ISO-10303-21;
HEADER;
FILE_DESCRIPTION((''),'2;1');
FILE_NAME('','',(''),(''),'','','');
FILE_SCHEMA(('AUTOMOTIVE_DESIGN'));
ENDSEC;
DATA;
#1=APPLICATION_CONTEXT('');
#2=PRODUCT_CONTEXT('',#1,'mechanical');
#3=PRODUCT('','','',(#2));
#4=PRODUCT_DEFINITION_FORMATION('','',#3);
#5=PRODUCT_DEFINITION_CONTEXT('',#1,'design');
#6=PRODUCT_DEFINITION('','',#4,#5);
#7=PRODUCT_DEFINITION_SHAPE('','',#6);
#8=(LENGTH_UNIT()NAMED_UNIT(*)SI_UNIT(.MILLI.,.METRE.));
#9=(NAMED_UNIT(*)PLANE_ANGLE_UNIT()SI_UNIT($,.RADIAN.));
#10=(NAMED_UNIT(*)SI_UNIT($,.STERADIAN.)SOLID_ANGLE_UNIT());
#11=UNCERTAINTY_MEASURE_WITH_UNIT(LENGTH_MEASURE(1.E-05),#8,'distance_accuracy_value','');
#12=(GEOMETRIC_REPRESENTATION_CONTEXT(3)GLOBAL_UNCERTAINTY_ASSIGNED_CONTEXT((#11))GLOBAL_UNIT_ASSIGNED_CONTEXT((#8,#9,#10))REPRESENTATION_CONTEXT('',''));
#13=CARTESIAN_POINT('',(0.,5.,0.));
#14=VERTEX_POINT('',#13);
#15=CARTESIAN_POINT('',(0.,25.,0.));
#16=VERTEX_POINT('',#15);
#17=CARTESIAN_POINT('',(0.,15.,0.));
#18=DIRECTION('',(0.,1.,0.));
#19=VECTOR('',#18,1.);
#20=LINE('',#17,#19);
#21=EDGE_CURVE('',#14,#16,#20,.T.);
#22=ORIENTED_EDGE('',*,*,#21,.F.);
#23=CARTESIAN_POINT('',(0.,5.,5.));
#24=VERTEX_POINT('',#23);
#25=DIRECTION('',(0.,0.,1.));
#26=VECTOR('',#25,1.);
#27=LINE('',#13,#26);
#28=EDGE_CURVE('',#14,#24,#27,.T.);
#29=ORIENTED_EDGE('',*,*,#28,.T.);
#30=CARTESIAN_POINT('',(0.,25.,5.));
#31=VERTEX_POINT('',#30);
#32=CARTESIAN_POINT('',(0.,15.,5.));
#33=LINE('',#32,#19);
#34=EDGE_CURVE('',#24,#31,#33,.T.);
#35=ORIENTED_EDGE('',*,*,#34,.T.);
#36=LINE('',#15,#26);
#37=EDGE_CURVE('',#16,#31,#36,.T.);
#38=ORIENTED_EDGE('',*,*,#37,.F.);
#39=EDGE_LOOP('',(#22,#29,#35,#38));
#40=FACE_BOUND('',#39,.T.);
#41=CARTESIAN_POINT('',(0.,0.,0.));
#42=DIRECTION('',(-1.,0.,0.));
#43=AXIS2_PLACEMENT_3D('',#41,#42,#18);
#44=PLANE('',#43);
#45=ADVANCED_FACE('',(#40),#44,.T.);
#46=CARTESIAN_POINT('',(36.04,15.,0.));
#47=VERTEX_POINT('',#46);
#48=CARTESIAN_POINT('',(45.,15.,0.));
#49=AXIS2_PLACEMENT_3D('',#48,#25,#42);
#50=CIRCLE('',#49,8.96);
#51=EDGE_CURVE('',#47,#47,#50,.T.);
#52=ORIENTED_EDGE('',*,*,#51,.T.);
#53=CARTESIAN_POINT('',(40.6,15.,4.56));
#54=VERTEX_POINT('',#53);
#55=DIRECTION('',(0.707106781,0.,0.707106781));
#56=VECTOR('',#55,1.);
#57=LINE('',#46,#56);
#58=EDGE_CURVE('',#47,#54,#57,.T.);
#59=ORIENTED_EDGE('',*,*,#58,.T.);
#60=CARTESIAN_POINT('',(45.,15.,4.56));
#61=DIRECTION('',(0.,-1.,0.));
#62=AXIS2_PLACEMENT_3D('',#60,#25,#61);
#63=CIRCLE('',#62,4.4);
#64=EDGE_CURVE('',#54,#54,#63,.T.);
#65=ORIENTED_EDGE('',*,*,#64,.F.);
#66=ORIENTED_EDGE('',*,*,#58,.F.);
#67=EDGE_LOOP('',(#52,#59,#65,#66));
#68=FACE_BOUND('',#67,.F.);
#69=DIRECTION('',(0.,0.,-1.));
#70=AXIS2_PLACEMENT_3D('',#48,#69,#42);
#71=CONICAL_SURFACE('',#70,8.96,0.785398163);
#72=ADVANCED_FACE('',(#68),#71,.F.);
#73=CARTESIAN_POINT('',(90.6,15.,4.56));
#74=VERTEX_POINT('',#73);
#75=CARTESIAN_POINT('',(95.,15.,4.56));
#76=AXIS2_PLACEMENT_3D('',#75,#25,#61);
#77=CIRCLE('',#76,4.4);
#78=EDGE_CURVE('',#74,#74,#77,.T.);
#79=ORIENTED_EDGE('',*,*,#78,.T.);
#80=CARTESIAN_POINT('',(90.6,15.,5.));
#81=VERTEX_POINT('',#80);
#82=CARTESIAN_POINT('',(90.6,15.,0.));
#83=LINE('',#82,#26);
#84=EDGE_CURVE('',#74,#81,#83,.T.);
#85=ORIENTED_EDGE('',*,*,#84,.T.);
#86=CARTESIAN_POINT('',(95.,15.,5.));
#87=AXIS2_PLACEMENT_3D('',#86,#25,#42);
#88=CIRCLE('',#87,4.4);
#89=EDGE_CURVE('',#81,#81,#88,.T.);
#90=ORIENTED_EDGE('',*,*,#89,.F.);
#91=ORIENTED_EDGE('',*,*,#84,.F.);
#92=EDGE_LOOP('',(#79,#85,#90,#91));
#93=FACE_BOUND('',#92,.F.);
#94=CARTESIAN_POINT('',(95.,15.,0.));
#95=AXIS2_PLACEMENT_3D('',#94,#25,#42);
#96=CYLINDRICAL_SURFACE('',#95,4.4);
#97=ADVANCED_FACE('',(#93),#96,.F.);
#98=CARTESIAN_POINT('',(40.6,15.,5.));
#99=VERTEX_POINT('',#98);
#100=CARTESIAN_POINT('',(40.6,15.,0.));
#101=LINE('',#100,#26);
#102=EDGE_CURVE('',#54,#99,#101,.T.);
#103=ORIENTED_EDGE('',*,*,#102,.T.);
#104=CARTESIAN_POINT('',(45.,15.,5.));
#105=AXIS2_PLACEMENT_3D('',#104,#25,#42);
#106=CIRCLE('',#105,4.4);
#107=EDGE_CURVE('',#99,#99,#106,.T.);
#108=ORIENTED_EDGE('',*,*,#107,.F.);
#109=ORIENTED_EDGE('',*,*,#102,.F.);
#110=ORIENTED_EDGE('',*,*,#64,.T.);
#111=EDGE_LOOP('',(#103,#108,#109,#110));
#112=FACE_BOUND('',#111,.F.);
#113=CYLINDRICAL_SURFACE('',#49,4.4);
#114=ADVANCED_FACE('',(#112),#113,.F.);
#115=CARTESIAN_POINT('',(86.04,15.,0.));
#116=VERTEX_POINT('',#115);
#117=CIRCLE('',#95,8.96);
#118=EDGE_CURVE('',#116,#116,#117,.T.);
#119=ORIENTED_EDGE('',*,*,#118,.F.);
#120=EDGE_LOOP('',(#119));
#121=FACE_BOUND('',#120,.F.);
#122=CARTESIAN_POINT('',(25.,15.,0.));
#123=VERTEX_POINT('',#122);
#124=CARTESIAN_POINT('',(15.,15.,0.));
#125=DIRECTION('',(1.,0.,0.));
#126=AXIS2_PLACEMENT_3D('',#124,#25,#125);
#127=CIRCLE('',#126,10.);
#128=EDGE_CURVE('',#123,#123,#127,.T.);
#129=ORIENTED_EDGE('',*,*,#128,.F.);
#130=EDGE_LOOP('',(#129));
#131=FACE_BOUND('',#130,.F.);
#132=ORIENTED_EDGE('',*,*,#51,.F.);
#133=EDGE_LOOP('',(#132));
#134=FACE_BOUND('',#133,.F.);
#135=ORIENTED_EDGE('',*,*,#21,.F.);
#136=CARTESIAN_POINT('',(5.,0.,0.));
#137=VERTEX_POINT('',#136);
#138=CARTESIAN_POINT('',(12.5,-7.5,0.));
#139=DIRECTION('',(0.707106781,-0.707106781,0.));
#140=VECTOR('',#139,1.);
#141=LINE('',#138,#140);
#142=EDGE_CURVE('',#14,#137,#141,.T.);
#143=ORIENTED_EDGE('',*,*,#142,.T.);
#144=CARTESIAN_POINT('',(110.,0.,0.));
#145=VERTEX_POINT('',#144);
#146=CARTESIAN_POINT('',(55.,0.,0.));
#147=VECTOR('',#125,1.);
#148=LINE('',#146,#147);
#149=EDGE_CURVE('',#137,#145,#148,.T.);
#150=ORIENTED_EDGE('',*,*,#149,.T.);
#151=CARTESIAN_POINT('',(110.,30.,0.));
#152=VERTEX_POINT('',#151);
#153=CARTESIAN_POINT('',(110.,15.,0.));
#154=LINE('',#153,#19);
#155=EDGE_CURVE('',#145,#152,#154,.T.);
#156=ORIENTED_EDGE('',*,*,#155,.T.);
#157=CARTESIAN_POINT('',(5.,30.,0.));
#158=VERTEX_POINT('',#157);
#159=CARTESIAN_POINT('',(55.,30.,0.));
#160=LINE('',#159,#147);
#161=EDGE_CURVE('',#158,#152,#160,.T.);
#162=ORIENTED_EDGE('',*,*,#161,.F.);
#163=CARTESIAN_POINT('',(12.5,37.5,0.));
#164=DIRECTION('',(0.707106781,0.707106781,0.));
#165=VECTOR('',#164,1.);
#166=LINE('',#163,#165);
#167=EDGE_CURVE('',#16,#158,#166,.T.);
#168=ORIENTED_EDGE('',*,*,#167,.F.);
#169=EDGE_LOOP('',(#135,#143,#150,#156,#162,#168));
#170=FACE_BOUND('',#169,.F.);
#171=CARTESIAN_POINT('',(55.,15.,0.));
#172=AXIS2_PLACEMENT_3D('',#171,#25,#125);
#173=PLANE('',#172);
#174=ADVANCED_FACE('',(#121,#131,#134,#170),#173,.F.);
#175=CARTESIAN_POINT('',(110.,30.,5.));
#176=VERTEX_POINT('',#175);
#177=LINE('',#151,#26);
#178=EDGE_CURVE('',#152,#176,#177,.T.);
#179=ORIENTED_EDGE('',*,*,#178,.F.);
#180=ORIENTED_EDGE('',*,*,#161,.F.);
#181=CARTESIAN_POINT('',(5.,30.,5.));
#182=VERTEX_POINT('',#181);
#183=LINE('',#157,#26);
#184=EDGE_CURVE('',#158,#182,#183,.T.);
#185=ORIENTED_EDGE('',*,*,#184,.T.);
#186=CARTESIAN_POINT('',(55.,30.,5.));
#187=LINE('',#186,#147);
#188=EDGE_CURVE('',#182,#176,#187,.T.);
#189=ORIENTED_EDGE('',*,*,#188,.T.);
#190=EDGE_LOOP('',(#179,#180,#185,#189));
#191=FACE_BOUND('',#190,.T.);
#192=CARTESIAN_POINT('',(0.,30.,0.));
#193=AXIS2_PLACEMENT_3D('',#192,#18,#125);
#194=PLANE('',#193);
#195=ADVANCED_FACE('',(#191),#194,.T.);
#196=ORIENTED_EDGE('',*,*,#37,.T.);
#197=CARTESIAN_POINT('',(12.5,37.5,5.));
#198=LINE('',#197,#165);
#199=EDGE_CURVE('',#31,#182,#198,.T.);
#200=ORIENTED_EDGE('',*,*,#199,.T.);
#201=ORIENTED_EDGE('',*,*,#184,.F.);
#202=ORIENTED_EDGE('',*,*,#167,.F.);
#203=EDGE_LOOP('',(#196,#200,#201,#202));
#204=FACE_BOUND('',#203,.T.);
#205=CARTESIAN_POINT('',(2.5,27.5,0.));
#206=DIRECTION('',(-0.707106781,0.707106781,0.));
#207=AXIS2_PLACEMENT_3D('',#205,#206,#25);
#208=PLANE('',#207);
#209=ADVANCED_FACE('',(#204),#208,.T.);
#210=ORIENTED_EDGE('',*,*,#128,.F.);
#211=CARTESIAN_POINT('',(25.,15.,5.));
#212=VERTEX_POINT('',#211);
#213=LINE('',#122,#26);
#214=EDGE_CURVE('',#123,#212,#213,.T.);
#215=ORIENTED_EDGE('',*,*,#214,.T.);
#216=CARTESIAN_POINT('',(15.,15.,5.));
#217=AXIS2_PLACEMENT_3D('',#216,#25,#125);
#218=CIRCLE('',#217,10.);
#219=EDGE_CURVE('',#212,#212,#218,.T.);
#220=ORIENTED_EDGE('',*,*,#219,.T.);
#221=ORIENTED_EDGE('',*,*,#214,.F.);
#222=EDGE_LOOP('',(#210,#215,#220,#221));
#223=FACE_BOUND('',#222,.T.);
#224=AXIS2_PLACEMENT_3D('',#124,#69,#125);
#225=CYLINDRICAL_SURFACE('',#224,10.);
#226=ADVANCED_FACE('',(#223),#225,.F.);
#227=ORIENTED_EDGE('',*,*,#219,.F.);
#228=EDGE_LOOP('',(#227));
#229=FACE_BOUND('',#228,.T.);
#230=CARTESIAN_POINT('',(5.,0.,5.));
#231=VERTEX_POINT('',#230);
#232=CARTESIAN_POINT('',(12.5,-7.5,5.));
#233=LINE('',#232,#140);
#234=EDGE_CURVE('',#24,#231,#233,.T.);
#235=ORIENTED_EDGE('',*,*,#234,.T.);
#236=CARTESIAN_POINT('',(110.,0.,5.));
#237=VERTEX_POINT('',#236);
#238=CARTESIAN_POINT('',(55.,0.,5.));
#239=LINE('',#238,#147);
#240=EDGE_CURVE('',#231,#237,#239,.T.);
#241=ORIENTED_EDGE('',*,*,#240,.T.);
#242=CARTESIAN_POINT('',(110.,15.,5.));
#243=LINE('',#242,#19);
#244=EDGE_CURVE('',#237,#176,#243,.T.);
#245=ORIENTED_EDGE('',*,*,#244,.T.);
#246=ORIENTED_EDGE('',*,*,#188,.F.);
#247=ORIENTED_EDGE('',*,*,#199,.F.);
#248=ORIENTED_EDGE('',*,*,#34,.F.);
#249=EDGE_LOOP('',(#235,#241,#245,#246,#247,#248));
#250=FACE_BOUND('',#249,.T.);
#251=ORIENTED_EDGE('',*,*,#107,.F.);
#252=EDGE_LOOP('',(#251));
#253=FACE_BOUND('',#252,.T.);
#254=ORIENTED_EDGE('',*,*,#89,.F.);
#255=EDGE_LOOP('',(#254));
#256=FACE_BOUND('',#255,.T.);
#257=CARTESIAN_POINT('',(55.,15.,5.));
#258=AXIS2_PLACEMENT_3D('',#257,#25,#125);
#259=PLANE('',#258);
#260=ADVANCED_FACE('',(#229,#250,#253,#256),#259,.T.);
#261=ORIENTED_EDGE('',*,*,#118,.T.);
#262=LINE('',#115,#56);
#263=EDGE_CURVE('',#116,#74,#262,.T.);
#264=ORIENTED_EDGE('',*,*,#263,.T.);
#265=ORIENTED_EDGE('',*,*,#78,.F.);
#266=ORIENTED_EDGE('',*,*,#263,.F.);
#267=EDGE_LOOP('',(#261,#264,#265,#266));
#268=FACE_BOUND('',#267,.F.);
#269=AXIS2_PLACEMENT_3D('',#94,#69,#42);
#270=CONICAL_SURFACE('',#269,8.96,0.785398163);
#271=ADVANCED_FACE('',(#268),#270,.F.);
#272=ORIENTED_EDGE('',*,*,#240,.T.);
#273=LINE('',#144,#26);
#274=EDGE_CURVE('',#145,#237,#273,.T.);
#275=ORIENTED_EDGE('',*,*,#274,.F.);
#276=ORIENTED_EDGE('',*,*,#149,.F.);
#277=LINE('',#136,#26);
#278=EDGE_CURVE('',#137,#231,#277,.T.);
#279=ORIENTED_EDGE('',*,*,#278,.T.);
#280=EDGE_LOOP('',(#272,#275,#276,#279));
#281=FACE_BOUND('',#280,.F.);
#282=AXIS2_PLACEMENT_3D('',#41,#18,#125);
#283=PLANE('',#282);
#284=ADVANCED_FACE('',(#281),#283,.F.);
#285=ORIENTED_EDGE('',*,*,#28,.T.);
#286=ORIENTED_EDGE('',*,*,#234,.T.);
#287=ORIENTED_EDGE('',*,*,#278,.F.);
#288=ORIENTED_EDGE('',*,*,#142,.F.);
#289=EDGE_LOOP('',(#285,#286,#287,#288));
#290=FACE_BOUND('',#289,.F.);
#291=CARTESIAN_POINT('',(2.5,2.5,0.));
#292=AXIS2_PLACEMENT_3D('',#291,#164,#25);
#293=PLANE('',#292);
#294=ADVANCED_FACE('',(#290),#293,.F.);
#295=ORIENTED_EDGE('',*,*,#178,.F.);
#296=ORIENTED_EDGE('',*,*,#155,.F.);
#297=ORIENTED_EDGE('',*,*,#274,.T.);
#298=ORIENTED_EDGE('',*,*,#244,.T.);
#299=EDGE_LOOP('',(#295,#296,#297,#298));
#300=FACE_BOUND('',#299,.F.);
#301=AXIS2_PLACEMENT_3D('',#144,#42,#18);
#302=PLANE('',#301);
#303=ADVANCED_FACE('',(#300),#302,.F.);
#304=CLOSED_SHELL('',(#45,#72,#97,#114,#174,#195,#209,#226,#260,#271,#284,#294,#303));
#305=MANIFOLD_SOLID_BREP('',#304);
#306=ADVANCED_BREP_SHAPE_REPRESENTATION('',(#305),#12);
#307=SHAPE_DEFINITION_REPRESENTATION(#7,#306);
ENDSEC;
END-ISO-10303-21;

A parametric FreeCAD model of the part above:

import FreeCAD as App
import Part
import Sketcher

V = App.Vector
Q = App.Units.Quantity


def edges_at(feature, points):
    """Names of the edges that pass closest to the given points."""
    edges = feature.Shape.Edges
    near = lambda p: min(range(len(edges)), key=lambda i: edges[i].distToShape(Part.Vertex(*p))[0])
    return sorted({f"Edge{near(p) + 1}" for p in points})

doc = App.newDocument("Part")
params = doc.addObject("Spreadsheet::Sheet", "Params")
for row, (alias, value) in enumerate([
    ("sketch1_diameter", "20 mm"),
    ("sketch1_width", "110 mm"),
    ("sketch1_height", "30 mm"),
    ("pad1_length", "5 mm"),
    ("chamfer_size", "5 mm"),
    ("sketch2_diameter", "8.8 mm"),
    ("hole_diameter", "8.8 mm"),
    ("hole_csink_diameter", "17.92 mm"),
], start=1):
    params.set(f"A{row}", alias)
    params.set(f"B{row}", "=" + value)
    params.setAlias(f"B{row}", alias)

body = doc.addObject("PartDesign::Body", "Body")

# Sketch on XY plane
sketch1 = body.newObject("Sketcher::SketchObject", "Sketch")
sketch1.AttachmentSupport = (doc.getObject("XY_Plane"), [""])
sketch1.MapMode = "FlatFace"
sketch1.addGeometry(Part.LineSegment(V(0, 30, 0), V(0, 0, 0)), False)
sketch1.addGeometry(Part.LineSegment(V(0, 0, 0), V(110, 0, 0)), False)
sketch1.addGeometry(Part.LineSegment(V(110, 0, 0), V(110, 30, 0)), False)
sketch1.addGeometry(Part.LineSegment(V(110, 30, 0), V(0, 30, 0)), False)
sketch1.addGeometry(Part.Circle(V(15, 15, 0), V(0, 0, 1), 10), False)
sketch1.addConstraint(Sketcher.Constraint("Coincident", 0, 2, 1, 1))
sketch1.addConstraint(Sketcher.Constraint("Coincident", 1, 2, 2, 1))
sketch1.addConstraint(Sketcher.Constraint("Coincident", 2, 2, 3, 1))
sketch1.addConstraint(Sketcher.Constraint("Coincident", 3, 2, 0, 1))
sketch1.addConstraint(Sketcher.Constraint("Vertical", 0))
sketch1.addConstraint(Sketcher.Constraint("Horizontal", 1))
sketch1.addConstraint(Sketcher.Constraint("Vertical", 2))
sketch1.addConstraint(Sketcher.Constraint("Horizontal", 3))
sketch1.addConstraint(Sketcher.Constraint("Coincident", 0, 2, -1, 1))
sketch1.addConstraint(Sketcher.Constraint("Diameter", 4, Q("20 mm")))
sketch1.addConstraint(Sketcher.Constraint("DistanceX", 1, 1, 1, 2, Q("110 mm")))
sketch1.addConstraint(Sketcher.Constraint("DistanceY", 0, 2, 0, 1, Q("30 mm")))
sketch1.addConstraint(Sketcher.Constraint("DistanceX", -1, 1, 4, 3, Q("15 mm")))
sketch1.addConstraint(Sketcher.Constraint("DistanceY", -1, 1, 4, 3, Q("15 mm")))
sketch1.setExpression("Constraints[9]", "Params.sketch1_diameter")
sketch1.setExpression("Constraints[10]", "Params.sketch1_width")
sketch1.setExpression("Constraints[11]", "Params.sketch1_height")
pad1 = body.newObject("PartDesign::Pad", "Pad")
pad1.Profile = sketch1
pad1.setExpression("Length", "Params.pad1_length")
doc.recompute()

chamfer = body.newObject("PartDesign::Chamfer", "Chamfer")
chamfer.Base = (pad1, edges_at(pad1, [(0, 30, 2.5), (0, 0, 2.5)]))
chamfer.setExpression("Size", "Params.chamfer_size")

# Sketch on XY plane
sketch2 = body.newObject("Sketcher::SketchObject", "Sketch001")
sketch2.AttachmentSupport = (doc.getObject("XY_Plane"), [""])
sketch2.MapMode = "FlatFace"
sketch2.addGeometry(Part.Circle(V(95, 15, 0), V(0, 0, 1), 4.4), False)
sketch2.addGeometry(Part.Circle(V(45, 15, 0), V(0, 0, 1), 4.4), False)
sketch2.addConstraint(Sketcher.Constraint("Equal", 0, 1))
sketch2.addConstraint(Sketcher.Constraint("Horizontal", 0, 3, 1, 3))
sketch2.addConstraint(Sketcher.Constraint("Diameter", 0, Q("8.8 mm")))
sketch2.addConstraint(Sketcher.Constraint("DistanceX", -1, 1, 0, 3, Q("95 mm")))
sketch2.addConstraint(Sketcher.Constraint("DistanceY", -1, 1, 0, 3, Q("15 mm")))
sketch2.addConstraint(Sketcher.Constraint("DistanceX", -1, 1, 1, 3, Q("45 mm")))
sketch2.setExpression("Constraints[2]", "Params.sketch2_diameter")
doc.recompute()
hole = body.newObject("PartDesign::Hole", "Hole")
hole.Profile = sketch2
hole.ThreadType = "None"
hole.setExpression("Diameter", "Params.hole_diameter")
hole.DepthType = "ThroughAll"
hole.HoleCutType = "Countersink"
hole.setExpression("HoleCutDiameter", "Params.hole_csink_diameter")
hole.HoleCutCountersinkAngle = 90
hole.Reversed = True

doc.recompute()
